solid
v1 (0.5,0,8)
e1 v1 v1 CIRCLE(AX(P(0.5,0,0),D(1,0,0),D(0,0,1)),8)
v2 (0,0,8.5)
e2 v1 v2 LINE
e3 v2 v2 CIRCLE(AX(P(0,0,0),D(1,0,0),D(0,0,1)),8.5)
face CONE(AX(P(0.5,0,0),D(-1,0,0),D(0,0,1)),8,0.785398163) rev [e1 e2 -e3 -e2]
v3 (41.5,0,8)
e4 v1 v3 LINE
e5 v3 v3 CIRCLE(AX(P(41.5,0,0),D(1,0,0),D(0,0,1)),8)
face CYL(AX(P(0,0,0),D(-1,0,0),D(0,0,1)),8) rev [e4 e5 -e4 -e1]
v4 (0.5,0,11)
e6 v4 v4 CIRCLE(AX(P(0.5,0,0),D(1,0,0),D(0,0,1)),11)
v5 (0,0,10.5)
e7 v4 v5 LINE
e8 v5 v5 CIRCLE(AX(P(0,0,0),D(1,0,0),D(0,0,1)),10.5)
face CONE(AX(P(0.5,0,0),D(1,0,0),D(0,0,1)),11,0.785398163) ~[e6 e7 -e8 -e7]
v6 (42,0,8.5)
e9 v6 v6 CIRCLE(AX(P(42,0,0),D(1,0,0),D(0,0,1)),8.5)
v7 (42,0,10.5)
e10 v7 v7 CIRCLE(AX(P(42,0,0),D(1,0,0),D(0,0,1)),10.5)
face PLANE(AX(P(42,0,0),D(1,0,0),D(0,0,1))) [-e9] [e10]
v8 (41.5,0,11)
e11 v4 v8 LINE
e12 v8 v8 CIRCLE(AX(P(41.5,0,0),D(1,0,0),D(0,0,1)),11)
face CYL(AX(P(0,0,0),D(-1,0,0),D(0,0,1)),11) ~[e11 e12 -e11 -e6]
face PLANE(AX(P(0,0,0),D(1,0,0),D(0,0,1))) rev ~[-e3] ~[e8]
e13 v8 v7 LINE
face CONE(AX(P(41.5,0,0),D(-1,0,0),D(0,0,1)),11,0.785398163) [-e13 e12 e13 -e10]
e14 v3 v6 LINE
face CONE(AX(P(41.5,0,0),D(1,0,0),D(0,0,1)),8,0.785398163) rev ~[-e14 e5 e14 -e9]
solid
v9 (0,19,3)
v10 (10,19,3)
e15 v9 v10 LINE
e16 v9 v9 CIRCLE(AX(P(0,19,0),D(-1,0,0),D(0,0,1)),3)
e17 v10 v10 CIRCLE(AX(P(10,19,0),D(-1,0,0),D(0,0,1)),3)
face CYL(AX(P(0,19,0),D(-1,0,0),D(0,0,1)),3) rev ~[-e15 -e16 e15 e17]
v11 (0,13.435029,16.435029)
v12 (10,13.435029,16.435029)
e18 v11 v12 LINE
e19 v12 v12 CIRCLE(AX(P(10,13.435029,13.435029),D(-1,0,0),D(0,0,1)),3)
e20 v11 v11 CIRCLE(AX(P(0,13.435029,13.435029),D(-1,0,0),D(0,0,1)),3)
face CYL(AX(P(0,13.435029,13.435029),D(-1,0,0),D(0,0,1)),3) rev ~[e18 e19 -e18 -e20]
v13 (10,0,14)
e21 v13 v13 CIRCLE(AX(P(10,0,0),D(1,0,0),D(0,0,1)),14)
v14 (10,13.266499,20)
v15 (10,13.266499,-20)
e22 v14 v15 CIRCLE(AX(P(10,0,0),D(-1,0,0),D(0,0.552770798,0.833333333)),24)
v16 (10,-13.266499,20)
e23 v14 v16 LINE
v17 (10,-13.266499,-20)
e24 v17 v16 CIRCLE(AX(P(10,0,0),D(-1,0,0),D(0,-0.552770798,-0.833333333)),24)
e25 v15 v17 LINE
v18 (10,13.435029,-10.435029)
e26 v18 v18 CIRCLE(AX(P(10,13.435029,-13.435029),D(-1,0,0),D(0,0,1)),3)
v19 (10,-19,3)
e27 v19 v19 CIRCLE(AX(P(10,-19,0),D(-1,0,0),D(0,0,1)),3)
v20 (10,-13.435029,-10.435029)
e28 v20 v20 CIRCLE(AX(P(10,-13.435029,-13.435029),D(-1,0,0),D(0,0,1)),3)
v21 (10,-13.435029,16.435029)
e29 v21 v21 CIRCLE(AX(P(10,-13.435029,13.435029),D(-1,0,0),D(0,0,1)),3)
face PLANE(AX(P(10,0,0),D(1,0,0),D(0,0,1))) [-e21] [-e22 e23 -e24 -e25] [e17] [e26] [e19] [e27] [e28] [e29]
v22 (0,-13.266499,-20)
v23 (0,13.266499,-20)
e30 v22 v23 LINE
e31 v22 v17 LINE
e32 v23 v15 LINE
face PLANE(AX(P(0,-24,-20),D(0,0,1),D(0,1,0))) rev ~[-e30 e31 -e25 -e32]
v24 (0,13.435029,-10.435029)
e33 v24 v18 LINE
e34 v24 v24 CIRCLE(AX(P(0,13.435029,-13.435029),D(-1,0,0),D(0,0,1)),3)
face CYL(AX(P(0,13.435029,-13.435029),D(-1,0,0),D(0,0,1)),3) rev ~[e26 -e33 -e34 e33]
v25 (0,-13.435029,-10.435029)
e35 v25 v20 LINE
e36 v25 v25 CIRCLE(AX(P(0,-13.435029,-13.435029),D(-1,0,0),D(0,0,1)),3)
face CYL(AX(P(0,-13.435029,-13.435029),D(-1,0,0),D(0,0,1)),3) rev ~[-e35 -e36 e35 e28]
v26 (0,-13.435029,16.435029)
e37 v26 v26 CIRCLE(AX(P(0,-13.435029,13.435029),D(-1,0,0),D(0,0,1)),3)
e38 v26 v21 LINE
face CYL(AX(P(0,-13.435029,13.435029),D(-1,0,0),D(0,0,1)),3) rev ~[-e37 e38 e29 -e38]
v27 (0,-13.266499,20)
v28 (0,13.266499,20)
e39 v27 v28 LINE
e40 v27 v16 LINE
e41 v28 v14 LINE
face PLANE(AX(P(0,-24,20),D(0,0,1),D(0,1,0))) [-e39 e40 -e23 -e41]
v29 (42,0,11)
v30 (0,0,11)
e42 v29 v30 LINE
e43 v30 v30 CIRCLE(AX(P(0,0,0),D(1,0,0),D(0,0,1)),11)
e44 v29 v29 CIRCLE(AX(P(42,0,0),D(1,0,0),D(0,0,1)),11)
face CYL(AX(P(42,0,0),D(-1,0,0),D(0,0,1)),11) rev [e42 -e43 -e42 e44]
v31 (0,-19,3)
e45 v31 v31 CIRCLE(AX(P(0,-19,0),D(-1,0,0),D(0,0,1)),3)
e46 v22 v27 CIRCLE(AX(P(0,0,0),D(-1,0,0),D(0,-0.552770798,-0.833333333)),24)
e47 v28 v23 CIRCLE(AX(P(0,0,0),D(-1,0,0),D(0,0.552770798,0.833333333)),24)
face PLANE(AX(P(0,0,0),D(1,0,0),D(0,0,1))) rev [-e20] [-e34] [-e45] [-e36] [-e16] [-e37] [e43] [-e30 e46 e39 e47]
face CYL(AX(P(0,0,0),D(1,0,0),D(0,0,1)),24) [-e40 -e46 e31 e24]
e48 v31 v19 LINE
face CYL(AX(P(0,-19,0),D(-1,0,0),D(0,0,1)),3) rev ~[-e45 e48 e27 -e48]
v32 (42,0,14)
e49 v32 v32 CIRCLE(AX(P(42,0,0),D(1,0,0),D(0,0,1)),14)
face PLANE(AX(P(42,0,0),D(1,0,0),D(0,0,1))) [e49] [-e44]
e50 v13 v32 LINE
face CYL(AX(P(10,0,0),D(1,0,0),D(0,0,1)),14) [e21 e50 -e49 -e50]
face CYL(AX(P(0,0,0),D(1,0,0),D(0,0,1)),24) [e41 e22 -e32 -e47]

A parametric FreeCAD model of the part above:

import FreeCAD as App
import Part
import Sketcher

V = App.Vector


def edges_at(feature, points):
    """Names of the edges that pass closest to the given points."""
    edges = feature.Shape.Edges
    near = lambda p: min(range(len(edges)), key=lambda i: edges[i].distToShape(Part.Vertex(*p))[0])
    return sorted({f"Edge{near(p) + 1}" for p in points})


def add_polygon(sketch, points):
    """Adds a closed chain of lines whose ends are joined by coincident constraints."""
    first, n = sketch.GeometryCount, len(points)
    for a, b in zip(points, points[1:] + points[:1]):
        sketch.addGeometry(Part.LineSegment(App.Vector(*a, 0), App.Vector(*b, 0)), False)
    for i in range(n):
        sketch.addConstraint(Sketcher.Constraint("Coincident", first + i, 2, first + (i + 1) % n, 1))

doc = App.newDocument("Part")
body = doc.addObject("PartDesign::Body", "Body")

sketch1 = body.newObject("Sketcher::SketchObject", "Sketch")
sketch1.AttachmentSupport = (doc.getObject("XY_Plane"), [""])
sketch1.MapMode = "FlatFace"
add_polygon(sketch1, [(0, 24), (0, 11), (42, 11), (42, 14), (10, 14), (10, 24)])
sketch1.addConstraint([
    Sketcher.Constraint("Vertical", 0),
    Sketcher.Constraint("Horizontal", 1),
    Sketcher.Constraint("Vertical", 2),
    Sketcher.Constraint("Horizontal", 3),
    Sketcher.Constraint("Vertical", 4),
    Sketcher.Constraint("Horizontal", 5),
    Sketcher.Constraint("PointOnObject", 0, 2, -2),
    Sketcher.Constraint("Equal", 5, 4),
    Sketcher.Constraint("DistanceX", 1, 1, 1, 2, 42.0),
    Sketcher.Constraint("DistanceX", 3, 2, 3, 1, 32.0),
    Sketcher.Constraint("DistanceY", 0, 2, 0, 1, 13.0),
    Sketcher.Constraint("DistanceY", -1, 1, 0, 2, 11.0),
])
revolution = body.newObject("PartDesign::Revolution", "Revolution")
revolution.Profile = sketch1
revolution.ReferenceAxis = (sketch1, ["H_Axis"])
revolution.Angle = 360

sketch2 = body.newObject("Sketcher::SketchObject", "Sketch001")
sketch2.AttachmentSupport = (doc.getObject("YZ_Plane"), [""])
sketch2.MapMode = "FlatFace"
add_polygon(sketch2, [(34, -30), (-34, -30), (-34, 30), (34, 30)])
add_polygon(sketch2, [(-24, 20), (-24, -20), (24, -20), (24, 20)])
sketch2.addConstraint([
    Sketcher.Constraint("Horizontal", 0),
    Sketcher.Constraint("Vertical", 1),
    Sketcher.Constraint("Horizontal", 2),
    Sketcher.Constraint("Vertical", 3),
    Sketcher.Constraint("Vertical", 4),
    Sketcher.Constraint("Horizontal", 5),
    Sketcher.Constraint("Vertical", 6),
    Sketcher.Constraint("Horizontal", 7),
    Sketcher.Constraint("Symmetric", 0, 2, 2, 2, -1, 1),
    Sketcher.Constraint("Symmetric", 4, 2, 6, 2, -1, 1),
    Sketcher.Constraint("DistanceX", 0, 2, 0, 1, 68.0),
    Sketcher.Constraint("DistanceX", 5, 1, 5, 2, 48.0),
    Sketcher.Constraint("DistanceY", 1, 1, 1, 2, 60.0),
    Sketcher.Constraint("DistanceY", 4, 2, 4, 1, 40.0),
])
pocket1 = body.newObject("PartDesign::Pocket", "Pocket")
pocket1.Profile = sketch2
pocket1.Type = "ThroughAll"
pocket1.Reversed = True

sketch3 = body.newObject("Sketcher::SketchObject", "Sketch002")
sketch3.AttachmentSupport = (doc.getObject("YZ_Plane"), [""])
sketch3.MapMode = "FlatFace"
sketch3.addGeometry([
    Part.Circle(V(19, 0, 0), V(0, 0, 1), 3),
    Part.Circle(V(13.4, 13.4, 0), V(0, 0, 1), 3),
    Part.Circle(V(13.4, -13.4, 0), V(0, 0, 1), 3),
    Part.Circle(V(-13.4, -13.4, 0), V(0, 0, 1), 3),
    Part.Circle(V(-19, 0, 0), V(0, 0, 1), 3),
    Part.Circle(V(-13.4, 13.4, 0), V(0, 0, 1), 3),
], False)
sketch3.addConstraint([
    Sketcher.Constraint("Equal", 0, 1),
    Sketcher.Constraint("Equal", 1, 2),
    Sketcher.Constraint("Equal", 2, 3),
    Sketcher.Constraint("Equal", 3, 4),
    Sketcher.Constraint("Equal", 4, 5),
    Sketcher.Constraint("Symmetric", 1, 3, 3, 3, -1, 1),
    Sketcher.Constraint("Symmetric", 0, 3, 4, 3, -1, 1),
    Sketcher.Constraint("Symmetric", 2, 3, 5, 3, -1, 1),
    Sketcher.Constraint("Symmetric", 2, 3, 3, 3, -2),
    Sketcher.Constraint("PointOnObject", 0, 3, -1),
    Sketcher.Constraint("Diameter", 0, 6.0),
    Sketcher.Constraint("DistanceX", -1, 1, 0, 3, 19.0),
    Sketcher.Constraint("DistanceX", -1, 1, 1, 3, 13.435029),
    Sketcher.Constraint("DistanceY", -1, 1, 1, 3, 13.435029),
])
pocket2 = body.newObject("PartDesign::Pocket", "Pocket001")
pocket2.Profile = sketch3
pocket2.Type = "ThroughAll"
pocket2.Reversed = True
body2 = doc.addObject("PartDesign::Body", "Body001")

sketch4 = body2.newObject("Sketcher::SketchObject", "Sketch003")
sketch4.AttachmentSupport = (doc.getObject("YZ_Plane001"), [""])
sketch4.MapMode = "FlatFace"
sketch4.addGeometry([
    Part.Circle(V(0, 0, 0), V(0, 0, 1), 11),
    Part.Circle(V(0, 0, 0), V(0, 0, 1), 8),
], False)
sketch4.addConstraint([
    Sketcher.Constraint("Coincident", 0, 3, -1, 1),
    Sketcher.Constraint("Coincident", 1, 3, -1, 1),
    Sketcher.Constraint("Diameter", 0, 22.0),
    Sketcher.Constraint("Diameter", 1, 16.0),
])
pad1 = body2.newObject("PartDesign::Pad", "Pad")
pad1.Profile = sketch4
pad1.Length = 42
doc.recompute()

chamfer = body2.newObject("PartDesign::Chamfer", "Chamfer")
chamfer.Base = (pad1, edges_at(pad1, [
    (0, 0, -8),
    (0, 0, -11),
    (42, 0, -11),
    (42, 0, -8),
]))
chamfer.Size = 0.5

doc.recompute()
